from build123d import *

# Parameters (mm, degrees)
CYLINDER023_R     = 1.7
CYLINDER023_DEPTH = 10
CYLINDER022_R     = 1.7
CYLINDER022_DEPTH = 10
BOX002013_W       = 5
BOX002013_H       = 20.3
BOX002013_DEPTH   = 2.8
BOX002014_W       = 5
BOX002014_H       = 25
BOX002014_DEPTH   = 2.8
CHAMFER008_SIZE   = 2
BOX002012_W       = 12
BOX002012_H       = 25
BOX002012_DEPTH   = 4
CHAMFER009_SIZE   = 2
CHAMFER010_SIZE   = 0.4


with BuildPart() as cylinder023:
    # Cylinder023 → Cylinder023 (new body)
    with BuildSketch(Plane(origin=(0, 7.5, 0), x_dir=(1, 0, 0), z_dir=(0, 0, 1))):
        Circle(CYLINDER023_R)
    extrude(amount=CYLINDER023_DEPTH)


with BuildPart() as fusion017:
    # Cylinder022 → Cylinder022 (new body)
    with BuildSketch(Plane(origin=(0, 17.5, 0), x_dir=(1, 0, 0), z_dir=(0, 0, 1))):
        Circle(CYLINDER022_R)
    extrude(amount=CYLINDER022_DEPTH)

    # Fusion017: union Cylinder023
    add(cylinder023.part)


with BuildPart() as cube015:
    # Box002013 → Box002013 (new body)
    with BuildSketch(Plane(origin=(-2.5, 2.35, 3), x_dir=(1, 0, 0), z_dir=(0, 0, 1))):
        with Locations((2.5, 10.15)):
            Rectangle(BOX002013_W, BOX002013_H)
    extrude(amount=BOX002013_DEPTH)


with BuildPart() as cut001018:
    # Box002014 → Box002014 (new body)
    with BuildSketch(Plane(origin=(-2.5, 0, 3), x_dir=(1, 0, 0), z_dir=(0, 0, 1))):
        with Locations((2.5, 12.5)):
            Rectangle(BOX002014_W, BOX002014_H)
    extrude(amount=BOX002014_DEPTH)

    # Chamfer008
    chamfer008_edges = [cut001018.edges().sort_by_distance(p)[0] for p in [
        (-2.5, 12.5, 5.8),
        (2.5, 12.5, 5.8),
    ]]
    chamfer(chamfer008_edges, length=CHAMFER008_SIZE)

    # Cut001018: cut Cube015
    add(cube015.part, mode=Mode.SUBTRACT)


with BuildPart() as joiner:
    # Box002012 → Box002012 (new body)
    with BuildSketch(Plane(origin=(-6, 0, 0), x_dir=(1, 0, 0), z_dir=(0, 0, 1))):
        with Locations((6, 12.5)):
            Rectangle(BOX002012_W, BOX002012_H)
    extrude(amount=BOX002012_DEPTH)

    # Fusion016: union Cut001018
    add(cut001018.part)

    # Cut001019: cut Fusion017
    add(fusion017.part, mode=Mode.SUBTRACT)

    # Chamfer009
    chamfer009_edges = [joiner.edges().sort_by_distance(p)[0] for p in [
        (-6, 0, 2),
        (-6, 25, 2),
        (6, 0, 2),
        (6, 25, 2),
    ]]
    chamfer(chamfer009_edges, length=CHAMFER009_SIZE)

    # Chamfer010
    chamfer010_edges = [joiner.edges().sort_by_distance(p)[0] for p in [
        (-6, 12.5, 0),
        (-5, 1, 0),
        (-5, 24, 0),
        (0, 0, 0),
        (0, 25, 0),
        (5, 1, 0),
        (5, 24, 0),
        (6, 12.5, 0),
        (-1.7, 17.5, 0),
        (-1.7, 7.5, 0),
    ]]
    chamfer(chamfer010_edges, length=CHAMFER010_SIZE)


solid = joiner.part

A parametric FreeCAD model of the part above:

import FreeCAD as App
import Part
import Sketcher


def edges_at(feature, points):
    """Names of the edges that pass closest to the given points."""
    edges = feature.Shape.Edges
    near = lambda p: min(range(len(edges)), key=lambda i: edges[i].distToShape(Part.Vertex(*p))[0])
    return sorted({f"Edge{near(p) + 1}" for p in points})


def add_polygon(sketch, points):
    """Adds a closed chain of lines whose ends are joined by coincident constraints."""
    first, n = sketch.GeometryCount, len(points)
    for a, b in zip(points, points[1:] + points[:1]):
        sketch.addGeometry(Part.LineSegment(App.Vector(*a, 0), App.Vector(*b, 0)), False)
    for i in range(n):
        sketch.addConstraint(Sketcher.Constraint("Coincident", first + i, 2, first + (i + 1) % n, 1))

doc = App.newDocument("Part")
body = doc.addObject("PartDesign::Body", "Body")

# Sketch on XY plane
sketch1 = body.newObject("Sketcher::SketchObject", "Sketch")
sketch1.AttachmentSupport = (doc.getObject("XY_Plane"), [""])
sketch1.MapMode = "FlatFace"
sketch1.addGeometry(Part.Circle(App.Vector(0, 7.5, 0), App.Vector(0, 0, 1), 1.7), False)
sketch1.addConstraint(Sketcher.Constraint("PointOnObject", 0, 3, -2))
sketch1.addConstraint(Sketcher.Constraint("Diameter", 0, 3.4))
sketch1.addConstraint(Sketcher.Constraint("DistanceY", -1, 1, 0, 3, 7.5))
pad1 = body.newObject("PartDesign::Pad", "Pad")
pad1.Profile = sketch1
pad1.Length = 10
body2 = doc.addObject("PartDesign::Body", "Body001")
body2.AllowCompound = True

# Sketch on XY plane
sketch2 = body2.newObject("Sketcher::SketchObject", "Sketch001")
sketch2.AttachmentSupport = (doc.getObject("XY_Plane001"), [""])
sketch2.MapMode = "FlatFace"
sketch2.addGeometry(Part.Circle(App.Vector(0, 17.5, 0), App.Vector(0, 0, 1), 1.7), False)
sketch2.addConstraint(Sketcher.Constraint("PointOnObject", 0, 3, -2))
sketch2.addConstraint(Sketcher.Constraint("Diameter", 0, 3.4))
sketch2.addConstraint(Sketcher.Constraint("DistanceY", -1, 1, 0, 3, 17.5))
pad2 = body2.newObject("PartDesign::Pad", "Pad001")
pad2.Profile = sketch2
pad2.Length = 10
doc.recompute()

boolean = body2.newObject("PartDesign::Boolean", "Boolean")
boolean.Type = "Fuse"
boolean.addObjects([body])
body3 = doc.addObject("PartDesign::Body", "Body002")

# Sketch on XY plane
sketch3 = body3.newObject("Sketcher::SketchObject", "Sketch002")
sketch3.AttachmentSupport = (doc.getObject("XY_Plane002"), [""])
sketch3.MapMode = "FlatFace"
sketch3.AttachmentOffset = App.Placement(App.Vector(0, 0, 3), App.Rotation())
add_polygon(sketch3, [(-2, 23), (-2, 2), (2, 2), (2, 23)])  # lines 0-3
sketch3.addConstraint(Sketcher.Constraint("Vertical", 0))
sketch3.addConstraint(Sketcher.Constraint("Horizontal", 1))
sketch3.addConstraint(Sketcher.Constraint("Vertical", 2))
sketch3.addConstraint(Sketcher.Constraint("Horizontal", 3))
sketch3.addConstraint(Sketcher.Constraint("DistanceX", 1, 1, 1, 2, 5.0))
sketch3.addConstraint(Sketcher.Constraint("DistanceY", 0, 2, 0, 1, 20.3))
sketch3.addConstraint(Sketcher.Constraint("DistanceX", 0, 2, -1, 1, 2.5))
sketch3.addConstraint(Sketcher.Constraint("DistanceY", -1, 1, 0, 2, 2.35))
pad3 = body3.newObject("PartDesign::Pad", "Pad002")
pad3.Profile = sketch3
pad3.Length = 2.8
body4 = doc.addObject("PartDesign::Body", "Body003")
body4.AllowCompound = True

# Sketch on XY plane
sketch4 = body4.newObject("Sketcher::SketchObject", "Sketch003")
sketch4.AttachmentSupport = (doc.getObject("XY_Plane003"), [""])
sketch4.MapMode = "FlatFace"
sketch4.AttachmentOffset = App.Placement(App.Vector(0, 0, 3), App.Rotation())
add_polygon(sketch4, [(-2, 25), (-2, 0), (2, 0), (2, 25)])  # lines 0-3
sketch4.addConstraint(Sketcher.Constraint("Vertical", 0))
sketch4.addConstraint(Sketcher.Constraint("Horizontal", 1))
sketch4.addConstraint(Sketcher.Constraint("Vertical", 2))
sketch4.addConstraint(Sketcher.Constraint("Horizontal", 3))
sketch4.addConstraint(Sketcher.Constraint("Symmetric", 0, 2, 1, 2, -1, 1))
sketch4.addConstraint(Sketcher.Constraint("DistanceX", 1, 1, 1, 2, 5.0))
sketch4.addConstraint(Sketcher.Constraint("DistanceY", 0, 2, 0, 1, 25.0))
pad4 = body4.newObject("PartDesign::Pad", "Pad003")
pad4.Profile = sketch4
pad4.Length = 2.8
doc.recompute()

chamfer = body4.newObject("PartDesign::Chamfer", "Chamfer")
chamfer.Base = (pad4, edges_at(pad4, [(-2.5, 12.5, 5.8), (2.5, 12.5, 5.8)]))
chamfer.Size = 2
doc.recompute()

boolean2 = body4.newObject("PartDesign::Boolean", "Boolean001")
boolean2.Type = "Cut"
boolean2.addObjects([body3])
body5 = doc.addObject("PartDesign::Body", "Body004")

# Sketch on XY plane
sketch5 = body5.newObject("Sketcher::SketchObject", "Sketch004")
sketch5.AttachmentSupport = (doc.getObject("XY_Plane004"), [""])
sketch5.MapMode = "FlatFace"
add_polygon(sketch5, [(-6, 25), (-6, 0), (6, 0), (6, 25)])  # lines 0-3
sketch5.addConstraint(Sketcher.Constraint("Vertical", 0))
sketch5.addConstraint(Sketcher.Constraint("Horizontal", 1))
sketch5.addConstraint(Sketcher.Constraint("Vertical", 2))
sketch5.addConstraint(Sketcher.Constraint("Horizontal", 3))
sketch5.addConstraint(Sketcher.Constraint("Symmetric", 0, 2, 1, 2, -1, 1))
sketch5.addConstraint(Sketcher.Constraint("DistanceX", 1, 1, 1, 2, 12.0))
sketch5.addConstraint(Sketcher.Constraint("DistanceY", 0, 2, 0, 1, 25.0))
pad5 = body5.newObject("PartDesign::Pad", "Pad004")
pad5.Profile = sketch5
pad5.Length = 4
doc.recompute()

boolean3 = body5.newObject("PartDesign::Boolean", "Boolean002")
boolean3.Type = "Fuse"
boolean3.addObjects([body4])
doc.recompute()

boolean4 = body5.newObject("PartDesign::Boolean", "Boolean003")
boolean4.Type = "Cut"
boolean4.addObjects([body2])
doc.recompute()

chamfer2 = body5.newObject("PartDesign::Chamfer", "Chamfer001")
chamfer2.Base = (boolean4, edges_at(boolean4, [
    (-6, 0, 2),
    (-6, 25, 2),
    (6, 0, 2),
    (6, 25, 2),
]))
chamfer2.Size = 2
doc.recompute()

chamfer3 = body5.newObject("PartDesign::Chamfer", "Chamfer002")
chamfer3.Base = (chamfer2, edges_at(chamfer2, [
    (-6, 12.5, 0),
    (-5, 1, 0),
    (-5, 24, 0),
    (0, 0, 0),
    (0, 25, 0),
    (5, 1, 0),
    (5, 24, 0),
    (6, 12.5, 0),
    (-1.7, 17.5, 0),
    (-1.7, 7.5, 0),
]))
chamfer3.Size = 0.4

doc.recompute()
